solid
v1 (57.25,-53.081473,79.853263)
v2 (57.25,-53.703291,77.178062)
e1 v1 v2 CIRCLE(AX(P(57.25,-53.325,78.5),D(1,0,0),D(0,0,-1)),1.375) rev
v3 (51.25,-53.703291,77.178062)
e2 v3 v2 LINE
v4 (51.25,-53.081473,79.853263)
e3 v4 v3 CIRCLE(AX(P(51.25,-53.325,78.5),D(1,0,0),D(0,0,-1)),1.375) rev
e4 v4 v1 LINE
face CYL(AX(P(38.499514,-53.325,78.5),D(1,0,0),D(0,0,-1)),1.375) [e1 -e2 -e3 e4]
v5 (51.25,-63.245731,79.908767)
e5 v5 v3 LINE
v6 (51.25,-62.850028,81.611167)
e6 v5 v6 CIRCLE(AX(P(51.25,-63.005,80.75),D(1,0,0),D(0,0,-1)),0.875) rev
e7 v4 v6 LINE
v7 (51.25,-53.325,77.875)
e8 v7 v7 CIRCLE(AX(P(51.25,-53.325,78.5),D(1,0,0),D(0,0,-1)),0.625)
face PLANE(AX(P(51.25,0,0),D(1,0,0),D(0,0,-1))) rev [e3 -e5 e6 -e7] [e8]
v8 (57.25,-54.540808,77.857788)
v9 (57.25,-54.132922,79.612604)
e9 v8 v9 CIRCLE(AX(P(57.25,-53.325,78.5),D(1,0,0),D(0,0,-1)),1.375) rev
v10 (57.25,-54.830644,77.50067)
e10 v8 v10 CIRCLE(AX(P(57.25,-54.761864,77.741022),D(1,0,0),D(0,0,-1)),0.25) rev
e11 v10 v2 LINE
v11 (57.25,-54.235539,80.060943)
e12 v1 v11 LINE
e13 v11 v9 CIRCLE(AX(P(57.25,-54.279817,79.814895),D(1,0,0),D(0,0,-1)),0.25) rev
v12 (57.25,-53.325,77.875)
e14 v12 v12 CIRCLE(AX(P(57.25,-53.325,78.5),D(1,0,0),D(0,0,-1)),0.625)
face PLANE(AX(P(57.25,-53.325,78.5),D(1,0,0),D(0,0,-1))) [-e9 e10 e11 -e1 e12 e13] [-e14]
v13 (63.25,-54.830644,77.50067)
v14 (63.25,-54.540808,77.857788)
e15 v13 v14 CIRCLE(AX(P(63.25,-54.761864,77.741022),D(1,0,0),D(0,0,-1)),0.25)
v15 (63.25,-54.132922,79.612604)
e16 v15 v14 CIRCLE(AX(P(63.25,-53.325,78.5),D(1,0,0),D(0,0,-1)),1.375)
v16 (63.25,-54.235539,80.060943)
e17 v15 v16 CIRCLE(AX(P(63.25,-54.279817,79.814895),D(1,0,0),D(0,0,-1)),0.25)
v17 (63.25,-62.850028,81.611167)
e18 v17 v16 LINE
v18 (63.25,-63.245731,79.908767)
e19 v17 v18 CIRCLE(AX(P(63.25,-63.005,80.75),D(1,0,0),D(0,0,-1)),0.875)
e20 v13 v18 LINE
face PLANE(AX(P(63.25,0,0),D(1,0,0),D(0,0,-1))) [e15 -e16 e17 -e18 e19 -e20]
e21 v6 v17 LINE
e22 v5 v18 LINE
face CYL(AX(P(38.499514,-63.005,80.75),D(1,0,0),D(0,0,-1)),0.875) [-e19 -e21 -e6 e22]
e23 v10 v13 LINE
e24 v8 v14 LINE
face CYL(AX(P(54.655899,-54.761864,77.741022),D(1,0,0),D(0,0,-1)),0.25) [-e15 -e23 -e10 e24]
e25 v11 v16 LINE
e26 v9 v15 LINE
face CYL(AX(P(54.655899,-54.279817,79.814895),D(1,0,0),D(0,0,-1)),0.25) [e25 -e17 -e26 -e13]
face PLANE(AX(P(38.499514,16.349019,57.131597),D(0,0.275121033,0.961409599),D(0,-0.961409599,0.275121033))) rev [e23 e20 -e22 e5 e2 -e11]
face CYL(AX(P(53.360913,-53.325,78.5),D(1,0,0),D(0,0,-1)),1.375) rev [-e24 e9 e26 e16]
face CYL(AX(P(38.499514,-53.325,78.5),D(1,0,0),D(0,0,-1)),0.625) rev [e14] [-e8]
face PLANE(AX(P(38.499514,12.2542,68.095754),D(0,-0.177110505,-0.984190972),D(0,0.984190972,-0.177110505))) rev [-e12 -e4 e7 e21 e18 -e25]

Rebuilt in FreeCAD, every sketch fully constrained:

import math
import FreeCAD as App
import Part
import Sketcher

doc = App.newDocument("Part")
body = doc.addObject("PartDesign::Body", "Body")

sketch1 = body.newObject("Sketcher::SketchObject", "Sketch")
sketch1.AttachmentSupport = (doc.getObject("YZ_Plane"), [""])
sketch1.MapMode = "FlatFace"
sketch1.AttachmentOffset = App.Placement(App.Vector(0, 0, 63.25), App.Rotation())
sketch1.addGeometry(Part.LineSegment(App.Vector(-63.2, 79.9, 0), App.Vector(-53.7, 77.2, 0)), False)
sketch1.addGeometry(Part.ArcOfCircle(Part.Circle(App.Vector(-53.3, 78.5, 0), App.Vector(0, 0, 1), 1.4), math.radians(-106), math.radians(80)), False)
sketch1.addGeometry(Part.LineSegment(App.Vector(-53.1, 79.9, 0), App.Vector(-62.9, 81.6, 0)), False)
sketch1.addGeometry(Part.ArcOfCircle(Part.Circle(App.Vector(-63, 80.8, 0), App.Vector(0, 0, 1), 0.9), math.radians(80), math.radians(254)), False)
sketch1.addGeometry(Part.Circle(App.Vector(-53.3, 78.5, 0), App.Vector(0, 0, 1), 0.6), False)
sketch1.addConstraint(Sketcher.Constraint("Tangent", 0, 2, 1, 1))
sketch1.addConstraint(Sketcher.Constraint("Tangent", 1, 2, 2, 1))
sketch1.addConstraint(Sketcher.Constraint("Tangent", 2, 2, 3, 1))
sketch1.addConstraint(Sketcher.Constraint("Tangent", 3, 2, 0, 1))
sketch1.addConstraint(Sketcher.Constraint("Coincident", 4, 3, 1, 3))
sketch1.addConstraint(Sketcher.Constraint("Diameter", 4, 1.25))
sketch1.addConstraint(Sketcher.Constraint("Radius", 1, 1.375))
sketch1.addConstraint(Sketcher.Constraint("Radius", 3, 0.875))
sketch1.addConstraint(Sketcher.Constraint("DistanceY", -1, 1, 1, 3, 78.5))
sketch1.addConstraint(Sketcher.Constraint("DistanceY", -1, 1, 3, 3, 80.75))
sketch1.addConstraint(Sketcher.Constraint("DistanceX", 3, 3, 1, 3, 9.68))
sketch1.addConstraint(Sketcher.Constraint("DistanceX", 1, 3, -1, 1, 53.325))
pad1 = body.newObject("PartDesign::Pad", "Pad")
pad1.Profile = sketch1
pad1.Length = 12
pad1.Reversed = True

sketch2 = body.newObject("Sketcher::SketchObject", "Sketch001")
sketch2.AttachmentSupport = (doc.getObject("YZ_Plane"), [""])
sketch2.MapMode = "FlatFace"
sketch2.AttachmentOffset = App.Placement(App.Vector(0, 0, 57.25), App.Rotation())
sketch2.addGeometry(Part.Circle(App.Vector(-53.3, 78.5, 0), App.Vector(0, 0, 1), 1.4), False)
sketch2.addConstraint(Sketcher.Constraint("Diameter", 0, 2.75))
sketch2.addConstraint(Sketcher.Constraint("DistanceY", -1, 1, 0, 3, 78.5))
sketch2.addConstraint(Sketcher.Constraint("DistanceX", 0, 3, -1, 1, 53.325))
pocket1 = body.newObject("PartDesign::Pocket", "Pocket")
pocket1.Profile = sketch2
pocket1.Length = 6
pocket1.Reversed = True

sketch3 = body.newObject("Sketcher::SketchObject", "Sketch002")
sketch3.AttachmentSupport = (doc.getObject("YZ_Plane"), [""])
sketch3.MapMode = "FlatFace"
sketch3.AttachmentOffset = App.Placement(App.Vector(0, 0, 57.25), App.Rotation())
sketch3.addGeometry(Part.LineSegment(App.Vector(-53.08, 79.85, 0), App.Vector(-54.24, 80.06, 0)), False)
sketch3.addGeometry(Part.ArcOfCircle(Part.Circle(App.Vector(-54.28, 79.81, 0), App.Vector(0, 0, 1), 0.25), math.radians(-54), math.radians(80)), False)
sketch3.addGeometry(Part.ArcOfCircle(Part.Circle(App.Vector(-53.33, 78.5, 0), App.Vector(0, 0, 1), 1.38), math.radians(80), math.radians(126)), False)
sketch3.addGeometry(Part.ArcOfCircle(Part.Circle(App.Vector(-53.32, 78.5, 0), App.Vector(0, 0, 1), 1.38), math.radians(-152), math.radians(-106)), False)
sketch3.addGeometry(Part.ArcOfCircle(Part.Circle(App.Vector(-54.76, 77.74, 0), App.Vector(0, 0, 1), 0.25), math.radians(-106), math.radians(28)), False)
sketch3.addGeometry(Part.LineSegment(App.Vector(-54.83, 77.5, 0), App.Vector(-53.7, 77.18, 0)), False)
sketch3.addConstraint(Sketcher.Constraint("Tangent", 0, 2, 1, 2))
sketch3.addConstraint(Sketcher.Constraint("Tangent", 1, 1, 2, 2))
sketch3.addConstraint(Sketcher.Constraint("Tangent", 2, 1, 0, 1))
sketch3.addConstraint(Sketcher.Constraint("Tangent", 3, 1, 4, 2))
sketch3.addConstraint(Sketcher.Constraint("Tangent", 4, 1, 5, 1))
sketch3.addConstraint(Sketcher.Constraint("Tangent", 5, 2, 3, 2))
sketch3.addConstraint(Sketcher.Constraint("Coincident", 3, 3, 2, 3))
sketch3.addConstraint(Sketcher.Constraint("Equal", 2, 3))
sketch3.addConstraint(Sketcher.Constraint("Equal", 1, 4))
sketch3.addConstraint(Sketcher.Constraint("Radius", 1, 0.25))
sketch3.addConstraint(Sketcher.Constraint("Radius", 2, 1.375))
sketch3.addConstraint(Sketcher.Constraint("DistanceY", -1, 1, 2, 3, 78.5))
sketch3.addConstraint(Sketcher.Constraint("DistanceX", 2, 3, -1, 1, 53.325))
sketch3.addConstraint(Sketcher.Constraint("DistanceX", 0, 2, -1, 1, 54.235539))
sketch3.addConstraint(Sketcher.Constraint("DistanceY", -1, 1, 3, 1, 77.857788))
pocket2 = body.newObject("PartDesign::Pocket", "Pocket001")
pocket2.Profile = sketch3
pocket2.Length = 6
pocket2.Reversed = True

doc.recompute()
